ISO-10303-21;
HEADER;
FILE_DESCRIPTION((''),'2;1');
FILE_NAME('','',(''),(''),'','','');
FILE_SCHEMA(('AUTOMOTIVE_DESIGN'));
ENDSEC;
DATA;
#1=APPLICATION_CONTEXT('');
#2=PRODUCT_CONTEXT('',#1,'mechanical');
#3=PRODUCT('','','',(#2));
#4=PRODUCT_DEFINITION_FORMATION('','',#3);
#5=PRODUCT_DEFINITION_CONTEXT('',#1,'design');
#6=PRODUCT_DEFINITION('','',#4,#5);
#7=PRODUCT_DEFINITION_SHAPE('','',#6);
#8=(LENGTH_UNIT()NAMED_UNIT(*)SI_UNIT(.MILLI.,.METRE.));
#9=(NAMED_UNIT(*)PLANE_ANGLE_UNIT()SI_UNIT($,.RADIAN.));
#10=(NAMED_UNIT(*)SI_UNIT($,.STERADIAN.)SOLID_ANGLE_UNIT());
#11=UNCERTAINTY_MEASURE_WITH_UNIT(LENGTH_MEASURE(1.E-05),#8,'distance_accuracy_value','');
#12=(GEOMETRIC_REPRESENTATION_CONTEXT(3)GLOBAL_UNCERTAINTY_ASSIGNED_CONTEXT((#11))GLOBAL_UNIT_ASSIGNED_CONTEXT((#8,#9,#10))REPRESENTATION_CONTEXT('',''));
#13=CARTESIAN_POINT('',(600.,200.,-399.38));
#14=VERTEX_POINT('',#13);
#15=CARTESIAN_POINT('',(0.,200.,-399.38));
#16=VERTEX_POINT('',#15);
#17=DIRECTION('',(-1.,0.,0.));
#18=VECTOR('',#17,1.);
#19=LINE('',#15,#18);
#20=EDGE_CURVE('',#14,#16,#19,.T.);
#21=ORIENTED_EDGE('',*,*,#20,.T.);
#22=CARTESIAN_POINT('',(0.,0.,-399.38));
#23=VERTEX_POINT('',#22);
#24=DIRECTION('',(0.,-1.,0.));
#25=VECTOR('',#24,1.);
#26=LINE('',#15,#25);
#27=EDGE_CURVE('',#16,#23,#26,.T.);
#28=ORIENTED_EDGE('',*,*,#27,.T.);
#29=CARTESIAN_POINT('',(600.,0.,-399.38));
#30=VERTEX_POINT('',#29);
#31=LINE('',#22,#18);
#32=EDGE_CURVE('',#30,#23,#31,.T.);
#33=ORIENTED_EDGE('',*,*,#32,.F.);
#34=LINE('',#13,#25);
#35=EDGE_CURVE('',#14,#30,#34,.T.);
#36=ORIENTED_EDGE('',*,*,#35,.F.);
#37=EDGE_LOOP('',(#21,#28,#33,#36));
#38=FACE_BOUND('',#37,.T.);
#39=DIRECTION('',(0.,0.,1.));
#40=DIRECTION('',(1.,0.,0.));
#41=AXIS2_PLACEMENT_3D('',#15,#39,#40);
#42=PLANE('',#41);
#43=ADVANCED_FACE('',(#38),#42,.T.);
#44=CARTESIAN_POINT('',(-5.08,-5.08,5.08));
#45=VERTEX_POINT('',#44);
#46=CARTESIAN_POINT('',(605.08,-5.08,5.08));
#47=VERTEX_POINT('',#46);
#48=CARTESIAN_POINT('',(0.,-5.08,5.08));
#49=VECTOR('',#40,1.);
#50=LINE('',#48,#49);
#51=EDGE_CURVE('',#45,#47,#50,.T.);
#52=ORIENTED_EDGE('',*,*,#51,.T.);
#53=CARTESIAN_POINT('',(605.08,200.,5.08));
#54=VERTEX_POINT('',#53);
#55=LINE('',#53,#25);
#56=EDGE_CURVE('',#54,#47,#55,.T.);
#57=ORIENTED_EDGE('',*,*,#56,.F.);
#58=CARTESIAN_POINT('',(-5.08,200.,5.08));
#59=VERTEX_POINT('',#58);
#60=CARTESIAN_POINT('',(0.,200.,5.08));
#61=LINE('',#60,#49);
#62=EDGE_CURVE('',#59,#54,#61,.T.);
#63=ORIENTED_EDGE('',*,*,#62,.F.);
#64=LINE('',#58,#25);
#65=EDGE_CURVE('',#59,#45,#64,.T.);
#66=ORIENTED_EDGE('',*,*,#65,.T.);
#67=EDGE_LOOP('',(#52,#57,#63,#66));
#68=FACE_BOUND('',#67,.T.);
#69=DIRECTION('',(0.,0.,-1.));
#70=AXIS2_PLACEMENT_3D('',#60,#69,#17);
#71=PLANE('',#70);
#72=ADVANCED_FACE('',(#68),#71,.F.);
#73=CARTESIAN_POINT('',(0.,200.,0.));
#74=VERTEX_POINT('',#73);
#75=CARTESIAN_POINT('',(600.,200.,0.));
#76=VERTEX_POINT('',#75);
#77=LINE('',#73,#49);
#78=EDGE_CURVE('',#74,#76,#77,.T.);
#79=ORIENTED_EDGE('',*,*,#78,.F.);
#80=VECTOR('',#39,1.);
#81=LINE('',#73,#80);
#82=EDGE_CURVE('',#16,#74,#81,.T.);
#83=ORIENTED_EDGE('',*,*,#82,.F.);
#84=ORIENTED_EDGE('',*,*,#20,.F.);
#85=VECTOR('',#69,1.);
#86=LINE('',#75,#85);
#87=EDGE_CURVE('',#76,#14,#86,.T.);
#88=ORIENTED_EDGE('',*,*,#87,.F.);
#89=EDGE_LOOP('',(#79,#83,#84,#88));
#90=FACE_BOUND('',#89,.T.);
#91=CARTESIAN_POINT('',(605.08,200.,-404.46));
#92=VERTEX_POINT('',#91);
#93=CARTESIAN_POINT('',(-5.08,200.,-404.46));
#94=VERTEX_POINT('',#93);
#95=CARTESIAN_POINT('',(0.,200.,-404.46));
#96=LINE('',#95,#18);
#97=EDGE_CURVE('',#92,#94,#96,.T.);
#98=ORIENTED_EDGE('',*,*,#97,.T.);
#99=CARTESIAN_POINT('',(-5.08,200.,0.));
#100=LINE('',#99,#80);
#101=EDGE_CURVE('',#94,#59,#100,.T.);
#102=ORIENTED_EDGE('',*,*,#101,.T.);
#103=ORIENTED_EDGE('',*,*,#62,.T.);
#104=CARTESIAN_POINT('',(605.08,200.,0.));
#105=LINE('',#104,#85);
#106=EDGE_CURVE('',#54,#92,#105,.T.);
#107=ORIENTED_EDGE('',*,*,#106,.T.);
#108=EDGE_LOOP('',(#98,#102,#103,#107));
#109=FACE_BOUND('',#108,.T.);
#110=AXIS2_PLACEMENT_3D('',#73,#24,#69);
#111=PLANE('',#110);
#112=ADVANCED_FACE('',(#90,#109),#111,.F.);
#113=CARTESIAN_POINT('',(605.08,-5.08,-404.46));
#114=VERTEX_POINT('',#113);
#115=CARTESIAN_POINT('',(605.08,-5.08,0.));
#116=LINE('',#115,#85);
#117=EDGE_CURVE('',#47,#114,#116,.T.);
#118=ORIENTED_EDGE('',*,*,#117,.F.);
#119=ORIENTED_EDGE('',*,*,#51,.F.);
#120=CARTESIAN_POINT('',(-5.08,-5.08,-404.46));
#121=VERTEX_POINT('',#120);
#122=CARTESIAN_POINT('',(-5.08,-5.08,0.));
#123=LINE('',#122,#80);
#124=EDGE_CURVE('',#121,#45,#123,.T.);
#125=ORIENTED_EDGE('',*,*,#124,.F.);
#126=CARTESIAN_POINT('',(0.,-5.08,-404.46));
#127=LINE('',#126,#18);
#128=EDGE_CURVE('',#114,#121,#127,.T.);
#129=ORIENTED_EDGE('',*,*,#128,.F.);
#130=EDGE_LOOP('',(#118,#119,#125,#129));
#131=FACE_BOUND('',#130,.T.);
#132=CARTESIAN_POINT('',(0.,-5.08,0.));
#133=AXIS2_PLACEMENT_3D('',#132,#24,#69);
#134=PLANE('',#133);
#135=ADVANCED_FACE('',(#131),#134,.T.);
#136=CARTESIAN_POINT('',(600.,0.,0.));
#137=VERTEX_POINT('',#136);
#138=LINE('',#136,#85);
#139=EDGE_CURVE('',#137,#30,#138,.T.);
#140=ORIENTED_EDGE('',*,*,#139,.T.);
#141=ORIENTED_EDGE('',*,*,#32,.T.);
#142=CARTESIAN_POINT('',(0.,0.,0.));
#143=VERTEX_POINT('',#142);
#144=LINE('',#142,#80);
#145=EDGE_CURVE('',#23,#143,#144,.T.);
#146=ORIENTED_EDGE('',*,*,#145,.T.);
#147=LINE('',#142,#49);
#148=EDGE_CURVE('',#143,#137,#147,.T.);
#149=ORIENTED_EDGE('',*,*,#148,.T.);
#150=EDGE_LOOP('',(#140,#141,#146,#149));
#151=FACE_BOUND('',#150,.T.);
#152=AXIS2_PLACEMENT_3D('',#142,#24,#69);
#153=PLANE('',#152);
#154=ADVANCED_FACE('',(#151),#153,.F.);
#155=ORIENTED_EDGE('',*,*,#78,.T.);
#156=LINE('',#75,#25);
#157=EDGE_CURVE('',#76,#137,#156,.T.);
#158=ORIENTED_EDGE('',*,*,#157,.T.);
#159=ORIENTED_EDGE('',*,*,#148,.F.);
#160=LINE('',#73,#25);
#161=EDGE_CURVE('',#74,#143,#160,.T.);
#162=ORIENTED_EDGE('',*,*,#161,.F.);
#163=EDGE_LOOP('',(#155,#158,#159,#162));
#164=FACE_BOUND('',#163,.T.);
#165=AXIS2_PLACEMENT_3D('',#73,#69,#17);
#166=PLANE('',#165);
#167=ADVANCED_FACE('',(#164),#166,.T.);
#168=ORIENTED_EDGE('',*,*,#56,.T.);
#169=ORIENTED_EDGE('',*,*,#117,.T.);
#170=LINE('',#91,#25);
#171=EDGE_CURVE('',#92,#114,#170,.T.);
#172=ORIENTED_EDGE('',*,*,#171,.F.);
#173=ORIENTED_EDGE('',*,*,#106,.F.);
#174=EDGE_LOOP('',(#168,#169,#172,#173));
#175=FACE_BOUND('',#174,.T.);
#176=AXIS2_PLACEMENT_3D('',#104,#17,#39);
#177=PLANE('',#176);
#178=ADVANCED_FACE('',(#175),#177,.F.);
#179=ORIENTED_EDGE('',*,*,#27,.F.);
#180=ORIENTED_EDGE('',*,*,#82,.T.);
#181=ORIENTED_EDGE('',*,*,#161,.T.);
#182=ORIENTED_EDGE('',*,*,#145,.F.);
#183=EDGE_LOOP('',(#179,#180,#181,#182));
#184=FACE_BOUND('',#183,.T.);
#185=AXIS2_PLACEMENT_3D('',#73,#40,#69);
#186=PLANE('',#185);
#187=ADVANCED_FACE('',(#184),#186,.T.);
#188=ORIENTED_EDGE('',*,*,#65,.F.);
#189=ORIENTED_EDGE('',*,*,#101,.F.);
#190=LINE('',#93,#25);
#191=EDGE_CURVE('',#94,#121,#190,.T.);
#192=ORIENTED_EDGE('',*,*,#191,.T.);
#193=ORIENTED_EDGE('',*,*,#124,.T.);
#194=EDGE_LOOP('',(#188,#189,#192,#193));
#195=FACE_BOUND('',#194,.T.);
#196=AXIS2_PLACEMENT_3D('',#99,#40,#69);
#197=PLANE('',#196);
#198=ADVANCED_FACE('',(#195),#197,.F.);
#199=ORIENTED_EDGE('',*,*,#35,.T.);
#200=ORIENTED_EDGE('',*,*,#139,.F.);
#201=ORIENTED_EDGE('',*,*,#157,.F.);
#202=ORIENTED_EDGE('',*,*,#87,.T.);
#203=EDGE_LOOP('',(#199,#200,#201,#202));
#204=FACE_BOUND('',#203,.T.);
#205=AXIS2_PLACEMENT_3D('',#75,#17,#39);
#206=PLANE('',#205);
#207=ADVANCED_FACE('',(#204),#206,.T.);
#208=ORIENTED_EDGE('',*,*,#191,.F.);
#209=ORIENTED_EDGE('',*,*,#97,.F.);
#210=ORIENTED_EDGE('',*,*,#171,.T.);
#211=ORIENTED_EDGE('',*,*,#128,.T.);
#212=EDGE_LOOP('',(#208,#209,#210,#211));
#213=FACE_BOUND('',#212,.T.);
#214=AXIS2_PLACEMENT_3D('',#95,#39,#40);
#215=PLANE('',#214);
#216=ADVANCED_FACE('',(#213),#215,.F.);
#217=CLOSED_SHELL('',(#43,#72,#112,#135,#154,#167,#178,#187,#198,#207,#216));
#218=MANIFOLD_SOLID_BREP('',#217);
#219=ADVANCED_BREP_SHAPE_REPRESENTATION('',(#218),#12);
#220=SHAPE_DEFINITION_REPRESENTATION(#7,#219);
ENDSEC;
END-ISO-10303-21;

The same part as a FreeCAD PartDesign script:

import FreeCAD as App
import Part
import Sketcher

V = App.Vector


def faces_at(feature, points):
    """Names of the faces that lie closest to the given points."""
    faces = feature.Shape.Faces
    near = lambda p: min(range(len(faces)), key=lambda i: faces[i].distToShape(Part.Vertex(*p))[0])
    return sorted({f"Face{near(p) + 1}" for p in points})


def add_polygon(sketch, points):
    """Adds a closed chain of lines whose ends are joined by coincident constraints."""
    first, n = sketch.GeometryCount, len(points)
    for a, b in zip(points, points[1:] + points[:1]):
        sketch.addGeometry(Part.LineSegment(App.Vector(*a, 0), App.Vector(*b, 0)), False)
    for i in range(n):
        sketch.addConstraint(Sketcher.Constraint("Coincident", first + i, 2, first + (i + 1) % n, 1))

doc = App.newDocument("Part")
params = doc.addObject("Spreadsheet::Sheet", "Params")
for row, (alias, value) in enumerate([
    ("sketch1_width", "600 mm"),
    ("sketch1_height", "399.38 mm"),
    ("pad1_length", "200 mm"),
    ("thickness_wall", "5.08 mm"),
], start=1):
    params.set(f"A{row}", alias)
    params.set(f"B{row}", "=" + value)
    params.setAlias(f"B{row}", alias)

body = doc.addObject("PartDesign::Body", "Body")

sketch1 = body.newObject("Sketcher::SketchObject", "Sketch")
sketch1.AttachmentSupport = (doc.getObject("XZ_Plane"), [""])
sketch1.MapMode = "FlatFace"
add_polygon(sketch1, [(0, -399), (0, 0), (600, 0), (600, -399)])
sketch1.addConstraint(Sketcher.Constraint("Vertical", 0))
sketch1.addConstraint(Sketcher.Constraint("Horizontal", 1))
sketch1.addConstraint(Sketcher.Constraint("Vertical", 2))
sketch1.addConstraint(Sketcher.Constraint("Horizontal", 3))
sketch1.addConstraint(Sketcher.Constraint("Coincident", 0, 2, -1, 1))
sketch1.addConstraint(Sketcher.Constraint("DistanceX", 1, 1, 1, 2, 600.0))
sketch1.addConstraint(Sketcher.Constraint("DistanceY", 0, 1, 0, 2, 399.38))
sketch1.setExpression("Constraints[9]", "Params.sketch1_width")
sketch1.setExpression("Constraints[10]", "Params.sketch1_height")
pad1 = body.newObject("PartDesign::Pad", "Pad")
pad1.Profile = sketch1
pad1.setExpression("Length", "Params.pad1_length")
pad1.Reversed = True
doc.recompute()

thickness = body.newObject("PartDesign::Thickness", "Thickness")
thickness.Base = (pad1, faces_at(pad1, [(300, 200, -199.69)]))
thickness.setExpression("Value", "Params.thickness_wall")
thickness.Reversed = False
thickness.Join = "Intersection"

doc.recompute()
